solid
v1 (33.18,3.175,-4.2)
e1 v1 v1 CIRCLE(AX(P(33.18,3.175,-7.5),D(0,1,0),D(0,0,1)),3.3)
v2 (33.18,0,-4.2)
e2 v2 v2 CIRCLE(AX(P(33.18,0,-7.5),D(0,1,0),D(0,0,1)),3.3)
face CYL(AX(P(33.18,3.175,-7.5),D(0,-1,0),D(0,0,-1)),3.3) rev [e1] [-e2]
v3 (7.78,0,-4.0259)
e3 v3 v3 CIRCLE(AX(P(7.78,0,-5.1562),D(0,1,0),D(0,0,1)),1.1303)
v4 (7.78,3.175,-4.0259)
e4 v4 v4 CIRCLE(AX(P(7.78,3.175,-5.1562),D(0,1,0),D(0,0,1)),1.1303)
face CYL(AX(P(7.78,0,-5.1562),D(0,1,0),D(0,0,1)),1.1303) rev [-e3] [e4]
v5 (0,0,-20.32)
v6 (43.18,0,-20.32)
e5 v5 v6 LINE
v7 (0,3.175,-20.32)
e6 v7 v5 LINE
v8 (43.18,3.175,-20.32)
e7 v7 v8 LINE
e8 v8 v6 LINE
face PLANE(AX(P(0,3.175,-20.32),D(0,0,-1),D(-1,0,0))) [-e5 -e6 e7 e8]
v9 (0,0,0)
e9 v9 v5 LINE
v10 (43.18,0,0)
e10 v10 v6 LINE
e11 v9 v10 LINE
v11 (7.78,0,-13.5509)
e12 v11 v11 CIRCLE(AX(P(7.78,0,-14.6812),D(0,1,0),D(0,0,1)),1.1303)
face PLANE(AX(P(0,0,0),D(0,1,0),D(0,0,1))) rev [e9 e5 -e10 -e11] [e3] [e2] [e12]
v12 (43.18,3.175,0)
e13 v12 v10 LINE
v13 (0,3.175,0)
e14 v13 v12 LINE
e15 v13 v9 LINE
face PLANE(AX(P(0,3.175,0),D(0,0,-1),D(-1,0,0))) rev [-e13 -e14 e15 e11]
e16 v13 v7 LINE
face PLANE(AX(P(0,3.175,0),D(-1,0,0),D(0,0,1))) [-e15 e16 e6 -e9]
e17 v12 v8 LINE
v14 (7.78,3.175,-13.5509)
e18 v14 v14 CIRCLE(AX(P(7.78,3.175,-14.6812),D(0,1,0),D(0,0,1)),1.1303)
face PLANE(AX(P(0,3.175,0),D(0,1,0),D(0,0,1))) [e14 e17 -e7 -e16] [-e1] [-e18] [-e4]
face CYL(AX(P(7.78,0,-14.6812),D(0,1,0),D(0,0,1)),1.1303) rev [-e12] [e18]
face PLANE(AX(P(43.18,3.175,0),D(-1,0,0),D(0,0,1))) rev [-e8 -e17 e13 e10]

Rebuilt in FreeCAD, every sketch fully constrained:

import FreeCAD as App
import Part
import Sketcher

V = App.Vector
Q = App.Units.Quantity

doc = App.newDocument("Part")
params = doc.addObject("Spreadsheet::Sheet", "Params")
for row, (alias, value) in enumerate([
    ("sketch1_width", "1.7 in"),
    ("sketch1_height", "0.8 in"),
    ("pad1_length", "0.125 in"),
    ("sketch2_diameter", "0.089 in"),
], start=1):
    params.set(f"A{row}", alias)
    params.set(f"B{row}", "=" + value)
    params.setAlias(f"B{row}", alias)

body = doc.addObject("PartDesign::Body", "Body")

# Sketch on XZ plane
sketch1 = body.newObject("Sketcher::SketchObject", "Sketch")
sketch1.AttachmentSupport = (doc.getObject("XZ_Plane"), [""])
sketch1.MapMode = "FlatFace"
sketch1.addGeometry([
    Part.LineSegment(V(0, -20.3, 0), V(0, 0, 0)),  # 0
    Part.LineSegment(V(0, 0, 0), V(43.2, 0, 0)),  # 1
    Part.LineSegment(V(43.2, 0, 0), V(43.2, -20.3, 0)),  # 2
    Part.LineSegment(V(43.2, -20.3, 0), V(0, -20.3, 0)),  # 3
    Part.Circle(V(33.2, -7.5, 0), V(0, 0, 1), 3.3),  # 4
], False)
sketch1.addConstraint([
    Sketcher.Constraint("Coincident", 0, 2, 1, 1),
    Sketcher.Constraint("Coincident", 1, 2, 2, 1),
    Sketcher.Constraint("Coincident", 2, 2, 3, 1),
    Sketcher.Constraint("Coincident", 3, 2, 0, 1),
    Sketcher.Constraint("Vertical", 0),
    Sketcher.Constraint("Horizontal", 1),
    Sketcher.Constraint("Vertical", 2),
    Sketcher.Constraint("Horizontal", 3),
    Sketcher.Constraint("Coincident", 0, 2, -1, 1),
    Sketcher.Constraint("DistanceX", 1, 1, 1, 2, Q("1.7 in")),
    Sketcher.Constraint("DistanceY", 0, 1, 0, 2, Q("0.8 in")),
    Sketcher.Constraint("Diameter", 4, Q("6.6 mm")),
    Sketcher.Constraint("DistanceX", -1, 1, 4, 3, Q("33.18 mm")),
    Sketcher.Constraint("DistanceY", 4, 3, -1, 1, Q("7.5 mm")),
])
sketch1.setExpression("Constraints[9]", "Params.sketch1_width")
sketch1.setExpression("Constraints[10]", "Params.sketch1_height")
pad1 = body.newObject("PartDesign::Pad", "Pad")
pad1.Profile = sketch1
pad1.setExpression("Length", "Params.pad1_length")
pad1.Reversed = True

# Sketch on XZ plane
sketch2 = body.newObject("Sketcher::SketchObject", "Sketch001")
sketch2.AttachmentSupport = (doc.getObject("XZ_Plane"), [""])
sketch2.MapMode = "FlatFace"
sketch2.AttachmentOffset = App.Placement(V(0, 0, -0.125 * 25.4), App.Rotation())
sketch2.addGeometry([
    Part.Circle(V(7.8, -5.2, 0), V(0, 0, 1), 1.1),
    Part.Circle(V(7.8, -14.7, 0), V(0, 0, 1), 1.1),
], False)
sketch2.addConstraint([
    Sketcher.Constraint("Equal", 0, 1),
    Sketcher.Constraint("Vertical", 0, 3, 1, 3),
    Sketcher.Constraint("Diameter", 0, Q("0.089 in")),
    Sketcher.Constraint("DistanceY", 0, 3, -1, 1, Q("0.203 in")),
    Sketcher.Constraint("DistanceY", 1, 3, -1, 1, Q("0.578 in")),
    Sketcher.Constraint("DistanceX", -1, 1, 0, 3, Q("7.78 mm")),
])
sketch2.setExpression("Constraints[2]", "Params.sketch2_diameter")
pocket1 = body.newObject("PartDesign::Pocket", "Pocket")
pocket1.Profile = sketch2
pocket1.Type = "ThroughAll"
pocket1.Reversed = True

doc.recompute()
